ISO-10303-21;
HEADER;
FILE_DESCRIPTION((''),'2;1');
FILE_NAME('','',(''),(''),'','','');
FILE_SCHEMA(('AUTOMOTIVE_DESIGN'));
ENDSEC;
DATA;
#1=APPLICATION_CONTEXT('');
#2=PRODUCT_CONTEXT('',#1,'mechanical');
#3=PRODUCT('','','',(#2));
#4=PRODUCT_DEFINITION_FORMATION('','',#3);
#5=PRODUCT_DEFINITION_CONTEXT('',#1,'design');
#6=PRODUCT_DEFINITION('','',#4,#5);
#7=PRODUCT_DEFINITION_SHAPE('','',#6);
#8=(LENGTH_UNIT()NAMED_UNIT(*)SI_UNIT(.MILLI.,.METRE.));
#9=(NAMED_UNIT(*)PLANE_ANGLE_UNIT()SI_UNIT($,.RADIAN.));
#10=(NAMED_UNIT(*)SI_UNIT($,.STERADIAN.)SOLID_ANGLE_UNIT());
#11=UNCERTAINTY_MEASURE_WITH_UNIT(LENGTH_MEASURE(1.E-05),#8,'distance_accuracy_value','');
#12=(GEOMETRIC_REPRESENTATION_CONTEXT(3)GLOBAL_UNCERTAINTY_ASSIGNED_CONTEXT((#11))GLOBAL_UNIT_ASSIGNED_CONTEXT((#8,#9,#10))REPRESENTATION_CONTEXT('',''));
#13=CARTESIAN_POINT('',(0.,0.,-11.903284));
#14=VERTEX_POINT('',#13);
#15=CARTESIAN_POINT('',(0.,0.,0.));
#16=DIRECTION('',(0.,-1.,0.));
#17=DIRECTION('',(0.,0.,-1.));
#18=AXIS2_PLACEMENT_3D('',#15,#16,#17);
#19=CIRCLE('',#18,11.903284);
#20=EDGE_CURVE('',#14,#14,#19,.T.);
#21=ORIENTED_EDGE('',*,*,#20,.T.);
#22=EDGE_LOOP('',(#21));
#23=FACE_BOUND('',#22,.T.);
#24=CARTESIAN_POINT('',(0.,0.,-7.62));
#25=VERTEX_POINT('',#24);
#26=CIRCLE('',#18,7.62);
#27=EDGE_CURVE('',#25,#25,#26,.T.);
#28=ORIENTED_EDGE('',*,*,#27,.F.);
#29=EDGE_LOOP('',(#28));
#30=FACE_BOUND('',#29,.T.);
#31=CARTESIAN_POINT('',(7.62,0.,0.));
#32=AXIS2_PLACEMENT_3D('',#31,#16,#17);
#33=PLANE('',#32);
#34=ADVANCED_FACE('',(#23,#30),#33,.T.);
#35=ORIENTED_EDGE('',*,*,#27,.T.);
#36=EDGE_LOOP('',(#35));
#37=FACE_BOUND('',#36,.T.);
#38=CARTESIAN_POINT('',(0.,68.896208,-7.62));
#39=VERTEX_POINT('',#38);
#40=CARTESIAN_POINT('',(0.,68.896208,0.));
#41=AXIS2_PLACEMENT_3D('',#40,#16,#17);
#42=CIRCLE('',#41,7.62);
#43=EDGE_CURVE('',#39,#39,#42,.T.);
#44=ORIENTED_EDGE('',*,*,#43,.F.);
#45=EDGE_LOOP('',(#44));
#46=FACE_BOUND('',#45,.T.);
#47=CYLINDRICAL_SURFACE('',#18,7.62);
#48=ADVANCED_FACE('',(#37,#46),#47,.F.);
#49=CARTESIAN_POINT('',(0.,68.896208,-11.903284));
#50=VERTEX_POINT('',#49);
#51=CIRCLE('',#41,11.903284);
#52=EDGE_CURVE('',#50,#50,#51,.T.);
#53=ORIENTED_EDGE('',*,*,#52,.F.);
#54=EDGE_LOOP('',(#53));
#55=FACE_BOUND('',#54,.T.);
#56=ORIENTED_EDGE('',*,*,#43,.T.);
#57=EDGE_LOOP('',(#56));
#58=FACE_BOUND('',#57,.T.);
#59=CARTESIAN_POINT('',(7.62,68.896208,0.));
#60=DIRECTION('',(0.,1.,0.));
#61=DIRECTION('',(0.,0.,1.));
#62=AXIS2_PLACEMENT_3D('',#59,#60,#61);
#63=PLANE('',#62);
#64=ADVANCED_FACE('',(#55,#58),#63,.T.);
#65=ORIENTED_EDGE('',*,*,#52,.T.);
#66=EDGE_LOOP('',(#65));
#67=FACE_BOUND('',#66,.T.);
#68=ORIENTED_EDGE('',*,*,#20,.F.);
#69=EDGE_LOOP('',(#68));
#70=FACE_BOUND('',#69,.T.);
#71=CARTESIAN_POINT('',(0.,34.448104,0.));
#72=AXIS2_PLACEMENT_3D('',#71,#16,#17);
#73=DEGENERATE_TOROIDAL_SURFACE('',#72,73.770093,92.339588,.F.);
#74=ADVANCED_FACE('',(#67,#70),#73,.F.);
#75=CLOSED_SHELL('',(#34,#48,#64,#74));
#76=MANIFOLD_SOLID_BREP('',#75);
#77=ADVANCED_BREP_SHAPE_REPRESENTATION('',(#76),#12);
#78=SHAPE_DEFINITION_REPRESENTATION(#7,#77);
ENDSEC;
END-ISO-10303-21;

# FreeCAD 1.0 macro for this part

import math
import FreeCAD as App
import Part
import Sketcher
Q = App.Units.Quantity

doc = App.newDocument("Part")
body = doc.addObject("PartDesign::Body", "Body")

# Sketch on XY plane
sketch1 = body.newObject("Sketcher::SketchObject", "Sketch")
sketch1.AttachmentSupport = (doc.getObject("XY_Plane"), [""])
sketch1.MapMode = "FlatFace"
sketch1.addGeometry([
    Part.LineSegment(App.Vector(7.6, 68.9, 0), App.Vector(7.6, 0, 0)),
    Part.LineSegment(App.Vector(7.6, 0, 0), App.Vector(11.9, 0, 0)),
    Part.ArcOfCircle(Part.Circle(App.Vector(-73.8, 34.4, 0), App.Vector(0, 0, 1), 92.3), math.radians(-22), math.radians(22)),
    Part.LineSegment(App.Vector(11.9, 68.9, 0), App.Vector(7.6, 68.9, 0)),
], False)
sketch1.addConstraint([
    Sketcher.Constraint("Coincident", 0, 2, 1, 1),
    Sketcher.Constraint("Coincident", 1, 2, 2, 1),
    Sketcher.Constraint("Coincident", 2, 2, 3, 1),
    Sketcher.Constraint("Coincident", 3, 2, 0, 1),
    Sketcher.Constraint("Vertical", 0),
    Sketcher.Constraint("Horizontal", 1),
    Sketcher.Constraint("Horizontal", 3),
    Sketcher.Constraint("PointOnObject", 0, 2, -1),
    Sketcher.Constraint("Vertical", 1, 2, 2, 2),
    Sketcher.Constraint("DistanceX", -1, 1, 0, 2, Q("7.62 mm")),
    Sketcher.Constraint("Radius", 2, Q("92.339588 mm")),
    Sketcher.Constraint("DistanceY", 0, 2, 0, 1, Q("68.896208 mm")),
    Sketcher.Constraint("DistanceX", 1, 1, 1, 2, Q("4.283284 mm")),
])
revolution = body.newObject("PartDesign::Revolution", "Revolution")
revolution.Profile = sketch1
revolution.ReferenceAxis = (sketch1, ["V_Axis"])
revolution.Angle = 360

doc.recompute()
